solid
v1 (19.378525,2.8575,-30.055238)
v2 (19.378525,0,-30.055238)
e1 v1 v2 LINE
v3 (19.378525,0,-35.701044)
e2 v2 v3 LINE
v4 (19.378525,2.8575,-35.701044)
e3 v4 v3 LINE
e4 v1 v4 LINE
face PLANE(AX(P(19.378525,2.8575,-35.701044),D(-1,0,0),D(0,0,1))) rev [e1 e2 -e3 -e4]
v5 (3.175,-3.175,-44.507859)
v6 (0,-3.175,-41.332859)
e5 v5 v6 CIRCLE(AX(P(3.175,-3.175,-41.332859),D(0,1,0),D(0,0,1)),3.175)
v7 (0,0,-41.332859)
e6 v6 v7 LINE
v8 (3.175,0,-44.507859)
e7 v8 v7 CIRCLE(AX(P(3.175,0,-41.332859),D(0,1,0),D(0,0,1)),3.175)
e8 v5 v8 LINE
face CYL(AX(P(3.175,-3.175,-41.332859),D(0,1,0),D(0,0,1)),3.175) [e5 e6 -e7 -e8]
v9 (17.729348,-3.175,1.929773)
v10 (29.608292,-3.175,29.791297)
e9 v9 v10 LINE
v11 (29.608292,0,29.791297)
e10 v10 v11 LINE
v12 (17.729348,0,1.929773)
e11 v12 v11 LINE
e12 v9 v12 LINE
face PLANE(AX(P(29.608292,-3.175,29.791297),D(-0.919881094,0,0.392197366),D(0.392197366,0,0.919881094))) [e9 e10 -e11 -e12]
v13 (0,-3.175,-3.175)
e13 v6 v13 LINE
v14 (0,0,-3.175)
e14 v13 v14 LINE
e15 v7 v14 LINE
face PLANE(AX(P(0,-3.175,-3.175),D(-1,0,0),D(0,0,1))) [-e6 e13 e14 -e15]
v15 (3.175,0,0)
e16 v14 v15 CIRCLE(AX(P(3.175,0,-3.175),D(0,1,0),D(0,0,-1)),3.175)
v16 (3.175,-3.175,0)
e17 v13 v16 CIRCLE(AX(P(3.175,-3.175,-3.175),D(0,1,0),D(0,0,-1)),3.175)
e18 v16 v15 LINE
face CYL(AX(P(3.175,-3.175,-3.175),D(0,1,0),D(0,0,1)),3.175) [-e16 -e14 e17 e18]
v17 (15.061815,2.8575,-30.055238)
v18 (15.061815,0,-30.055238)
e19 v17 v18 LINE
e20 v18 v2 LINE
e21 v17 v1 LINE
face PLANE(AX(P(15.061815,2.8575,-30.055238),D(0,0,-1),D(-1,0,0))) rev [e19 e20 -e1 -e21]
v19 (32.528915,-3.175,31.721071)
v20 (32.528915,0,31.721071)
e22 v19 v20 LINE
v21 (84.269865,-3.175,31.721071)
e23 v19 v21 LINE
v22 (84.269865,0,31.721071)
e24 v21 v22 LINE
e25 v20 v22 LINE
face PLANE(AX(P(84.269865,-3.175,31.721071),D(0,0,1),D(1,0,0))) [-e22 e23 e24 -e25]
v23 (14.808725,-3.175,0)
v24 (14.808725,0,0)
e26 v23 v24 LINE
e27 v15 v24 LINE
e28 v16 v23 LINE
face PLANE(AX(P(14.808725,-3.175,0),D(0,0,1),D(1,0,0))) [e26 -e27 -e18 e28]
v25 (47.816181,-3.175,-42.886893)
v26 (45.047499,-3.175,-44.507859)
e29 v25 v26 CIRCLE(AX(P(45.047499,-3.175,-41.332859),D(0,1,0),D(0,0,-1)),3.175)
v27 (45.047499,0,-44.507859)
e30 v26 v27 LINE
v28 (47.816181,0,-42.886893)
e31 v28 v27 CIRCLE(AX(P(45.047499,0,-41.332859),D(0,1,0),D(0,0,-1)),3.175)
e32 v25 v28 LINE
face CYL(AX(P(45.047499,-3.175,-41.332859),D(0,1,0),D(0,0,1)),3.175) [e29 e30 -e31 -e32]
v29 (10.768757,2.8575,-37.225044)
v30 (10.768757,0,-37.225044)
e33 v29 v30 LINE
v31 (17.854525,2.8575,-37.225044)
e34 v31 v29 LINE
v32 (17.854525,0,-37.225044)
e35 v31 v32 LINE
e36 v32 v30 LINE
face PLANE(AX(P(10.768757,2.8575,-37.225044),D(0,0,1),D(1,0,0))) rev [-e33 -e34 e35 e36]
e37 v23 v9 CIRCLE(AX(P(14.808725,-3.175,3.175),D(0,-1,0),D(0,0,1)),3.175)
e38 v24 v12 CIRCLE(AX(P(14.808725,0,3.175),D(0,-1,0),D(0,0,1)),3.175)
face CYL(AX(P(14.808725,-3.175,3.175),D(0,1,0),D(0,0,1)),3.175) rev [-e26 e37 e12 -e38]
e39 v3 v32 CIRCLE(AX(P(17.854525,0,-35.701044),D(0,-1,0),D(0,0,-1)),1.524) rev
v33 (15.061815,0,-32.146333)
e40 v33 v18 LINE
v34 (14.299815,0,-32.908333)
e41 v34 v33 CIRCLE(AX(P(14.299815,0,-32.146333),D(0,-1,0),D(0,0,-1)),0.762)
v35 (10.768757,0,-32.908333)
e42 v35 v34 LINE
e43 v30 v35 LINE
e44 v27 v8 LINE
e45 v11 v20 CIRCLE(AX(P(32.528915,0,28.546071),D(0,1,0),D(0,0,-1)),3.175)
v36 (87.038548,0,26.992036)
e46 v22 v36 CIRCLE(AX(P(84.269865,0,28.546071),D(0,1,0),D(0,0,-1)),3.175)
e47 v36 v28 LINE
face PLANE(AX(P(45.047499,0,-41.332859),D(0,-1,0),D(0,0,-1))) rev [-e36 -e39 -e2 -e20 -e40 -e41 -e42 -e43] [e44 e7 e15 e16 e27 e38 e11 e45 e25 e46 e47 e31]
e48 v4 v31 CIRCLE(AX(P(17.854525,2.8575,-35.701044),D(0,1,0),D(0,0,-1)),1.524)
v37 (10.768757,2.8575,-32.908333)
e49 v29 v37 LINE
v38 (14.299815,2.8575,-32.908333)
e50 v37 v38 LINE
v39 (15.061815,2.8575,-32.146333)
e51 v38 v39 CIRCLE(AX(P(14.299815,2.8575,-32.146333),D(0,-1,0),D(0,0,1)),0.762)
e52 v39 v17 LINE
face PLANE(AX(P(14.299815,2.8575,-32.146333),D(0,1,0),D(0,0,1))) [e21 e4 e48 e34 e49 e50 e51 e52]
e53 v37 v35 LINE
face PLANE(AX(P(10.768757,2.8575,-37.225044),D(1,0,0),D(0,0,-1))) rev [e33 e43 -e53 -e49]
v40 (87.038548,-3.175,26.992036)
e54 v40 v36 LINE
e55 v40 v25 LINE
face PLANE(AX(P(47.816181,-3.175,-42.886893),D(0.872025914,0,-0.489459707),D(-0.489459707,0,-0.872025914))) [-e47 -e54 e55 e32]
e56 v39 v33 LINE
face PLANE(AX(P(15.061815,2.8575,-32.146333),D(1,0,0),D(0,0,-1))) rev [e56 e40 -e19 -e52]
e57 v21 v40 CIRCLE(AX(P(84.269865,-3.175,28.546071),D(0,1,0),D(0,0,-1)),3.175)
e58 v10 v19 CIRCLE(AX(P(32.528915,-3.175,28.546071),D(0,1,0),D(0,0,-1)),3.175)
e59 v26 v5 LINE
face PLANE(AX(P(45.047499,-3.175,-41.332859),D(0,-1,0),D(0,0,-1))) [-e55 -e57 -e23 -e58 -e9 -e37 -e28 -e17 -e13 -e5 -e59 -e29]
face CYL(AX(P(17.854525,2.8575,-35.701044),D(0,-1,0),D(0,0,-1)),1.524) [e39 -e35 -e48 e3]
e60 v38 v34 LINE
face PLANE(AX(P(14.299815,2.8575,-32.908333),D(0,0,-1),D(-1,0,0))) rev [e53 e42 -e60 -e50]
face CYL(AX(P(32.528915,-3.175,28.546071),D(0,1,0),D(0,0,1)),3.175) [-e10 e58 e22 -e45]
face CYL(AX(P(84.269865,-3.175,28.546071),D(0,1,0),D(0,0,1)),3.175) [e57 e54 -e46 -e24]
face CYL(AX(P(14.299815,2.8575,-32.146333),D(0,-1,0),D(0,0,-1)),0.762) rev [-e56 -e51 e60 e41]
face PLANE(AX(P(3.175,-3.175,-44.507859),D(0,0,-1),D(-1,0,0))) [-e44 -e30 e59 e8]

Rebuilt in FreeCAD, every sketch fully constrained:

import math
import FreeCAD as App
import Part
import Sketcher
Q = App.Units.Quantity

doc = App.newDocument("Part")
body = doc.addObject("PartDesign::Body", "Body")

# Sketch on XZ plane
sketch1 = body.newObject("Sketcher::SketchObject", "Sketch")
sketch1.AttachmentSupport = (doc.getObject("XZ_Plane"), [""])
sketch1.MapMode = "FlatFace"
sketch1.addGeometry([
    Part.LineSegment(App.Vector(45, -44.5, 0), App.Vector(3.2, -44.5, 0)),  # 0
    Part.ArcOfCircle(Part.Circle(App.Vector(3.2, -41.3, 0), App.Vector(0, 0, 1), 3.2), math.radians(-180), math.radians(-90)),  # 1
    Part.LineSegment(App.Vector(0, -41.3, 0), App.Vector(0, -3.2, 0)),  # 2
    Part.ArcOfCircle(Part.Circle(App.Vector(3.2, -3.2, 0), App.Vector(0, 0, 1), 3.2), math.radians(90), math.radians(180)),  # 3
    Part.LineSegment(App.Vector(3.2, 0, 0), App.Vector(14.8, 0, 0)),  # 4
    Part.ArcOfCircle(Part.Circle(App.Vector(14.8, 3.2, 0), App.Vector(0, 0, 1), 3.2), math.radians(-90), math.radians(-23)),  # 5
    Part.LineSegment(App.Vector(17.7, 1.9, 0), App.Vector(29.6, 29.8, 0)),  # 6
    Part.ArcOfCircle(Part.Circle(App.Vector(32.5, 28.5, 0), App.Vector(0, 0, 1), 3.2), math.radians(90), math.radians(157)),  # 7
    Part.LineSegment(App.Vector(32.5, 31.7, 0), App.Vector(84.3, 31.7, 0)),  # 8
    Part.ArcOfCircle(Part.Circle(App.Vector(84.3, 28.5, 0), App.Vector(0, 0, 1), 3.2), math.radians(-29), math.radians(90)),  # 9
    Part.LineSegment(App.Vector(87, 27, 0), App.Vector(47.8, -42.9, 0)),  # 10
    Part.ArcOfCircle(Part.Circle(App.Vector(45, -41.3, 0), App.Vector(0, 0, 1), 3.2), math.radians(-90), math.radians(-29)),  # 11
], False)
sketch1.addConstraint([
    Sketcher.Constraint("Tangent", 0, 2, 1, 2),
    Sketcher.Constraint("Tangent", 1, 1, 2, 1),
    Sketcher.Constraint("Tangent", 2, 2, 3, 2),
    Sketcher.Constraint("Tangent", 3, 1, 4, 1),
    Sketcher.Constraint("Tangent", 4, 2, 5, 1),
    Sketcher.Constraint("Tangent", 5, 2, 6, 1),
    Sketcher.Constraint("Tangent", 6, 2, 7, 2),
    Sketcher.Constraint("Tangent", 7, 1, 8, 1),
    Sketcher.Constraint("Tangent", 8, 2, 9, 2),
    Sketcher.Constraint("Tangent", 9, 1, 10, 1),
    Sketcher.Constraint("Tangent", 10, 2, 11, 2),
    Sketcher.Constraint("Tangent", 11, 1, 0, 1),
    Sketcher.Constraint("Horizontal", 0),
    Sketcher.Constraint("Vertical", 2),
    Sketcher.Constraint("Horizontal", 4),
    Sketcher.Constraint("Horizontal", 8),
    Sketcher.Constraint("Equal", 1, 3),
    Sketcher.Constraint("Equal", 3, 5),
    Sketcher.Constraint("Equal", 5, 7),
    Sketcher.Constraint("Equal", 7, 9),
    Sketcher.Constraint("Equal", 9, 11),
    Sketcher.Constraint("PointOnObject", 1, 1, -2),
    Sketcher.Constraint("PointOnObject", 3, 1, -1),
    Sketcher.Constraint("Radius", 1, Q("0.125 in")),
    Sketcher.Constraint("DistanceX", 0, 2, 0, 1, 41.872499),
    Sketcher.Constraint("DistanceX", 8, 1, 8, 2, 51.740951),
    Sketcher.Constraint("DistanceY", 2, 1, 2, 2, 38.157859),
    Sketcher.Constraint("Distance", 6, 30.28818),
    Sketcher.Constraint("DistanceX", 4, 1, 4, 2, 11.633725),
    Sketcher.Constraint("DistanceY", -1, 1, 7, 3, 28.546071),
])
pad1 = body.newObject("PartDesign::Pad", "Pad")
pad1.Profile = sketch1
pad1.Length = Q("0.125 in")

# Sketch on XZ plane
sketch2 = body.newObject("Sketcher::SketchObject", "Sketch001")
sketch2.AttachmentSupport = (doc.getObject("XZ_Plane"), [""])
sketch2.MapMode = "FlatFace"
sketch2.addGeometry([
    Part.LineSegment(App.Vector(17.9, -37.2, 0), App.Vector(10.8, -37.2, 0)),  # 0
    Part.LineSegment(App.Vector(10.8, -37.2, 0), App.Vector(10.8, -32.9, 0)),  # 1
    Part.LineSegment(App.Vector(10.8, -32.9, 0), App.Vector(14.3, -32.9, 0)),  # 2
    Part.ArcOfCircle(Part.Circle(App.Vector(14.3, -32.1, 0), App.Vector(0, 0, 1), 0.8), math.radians(-90), math.radians(0)),  # 3
    Part.LineSegment(App.Vector(15.1, -32.1, 0), App.Vector(15.1, -30.1, 0)),  # 4
    Part.LineSegment(App.Vector(15.1, -30.1, 0), App.Vector(19.4, -30.1, 0)),  # 5
    Part.LineSegment(App.Vector(19.4, -30.1, 0), App.Vector(19.4, -35.7, 0)),  # 6
    Part.ArcOfCircle(Part.Circle(App.Vector(17.9, -35.7, 0), App.Vector(0, 0, 1), 1.5), math.radians(-90), math.radians(0)),  # 7
], False)
sketch2.addConstraint([
    Sketcher.Constraint("Coincident", 0, 2, 1, 1),
    Sketcher.Constraint("Coincident", 1, 2, 2, 1),
    Sketcher.Constraint("Tangent", 2, 2, 3, 1),
    Sketcher.Constraint("Tangent", 3, 2, 4, 1),
    Sketcher.Constraint("Coincident", 4, 2, 5, 1),
    Sketcher.Constraint("Coincident", 5, 2, 6, 1),
    Sketcher.Constraint("Tangent", 6, 2, 7, 2),
    Sketcher.Constraint("Tangent", 7, 1, 0, 1),
    Sketcher.Constraint("Horizontal", 0),
    Sketcher.Constraint("Vertical", 1),
    Sketcher.Constraint("Horizontal", 2),
    Sketcher.Constraint("Vertical", 4),
    Sketcher.Constraint("Horizontal", 5),
    Sketcher.Constraint("Vertical", 6),
    Sketcher.Constraint("Equal", 5, 1),
    Sketcher.Constraint("Radius", 3, Q("0.03 in")),
    Sketcher.Constraint("Radius", 7, Q("0.06 in")),
    Sketcher.Constraint("DistanceX", 0, 2, 0, 1, 7.085768),
    Sketcher.Constraint("DistanceX", 5, 1, 5, 2, 4.316711),
    Sketcher.Constraint("DistanceY", 4, 1, 4, 2, 2.091095),
    Sketcher.Constraint("DistanceX", -1, 1, 3, 3, 14.299815),
    Sketcher.Constraint("DistanceY", 3, 3, -1, 1, 32.146333),
])
pad2 = body.newObject("PartDesign::Pad", "Pad001")
pad2.Profile = sketch2
pad2.Length = Q("0.225 in")
pad2.Midplane = True

doc.recompute()
